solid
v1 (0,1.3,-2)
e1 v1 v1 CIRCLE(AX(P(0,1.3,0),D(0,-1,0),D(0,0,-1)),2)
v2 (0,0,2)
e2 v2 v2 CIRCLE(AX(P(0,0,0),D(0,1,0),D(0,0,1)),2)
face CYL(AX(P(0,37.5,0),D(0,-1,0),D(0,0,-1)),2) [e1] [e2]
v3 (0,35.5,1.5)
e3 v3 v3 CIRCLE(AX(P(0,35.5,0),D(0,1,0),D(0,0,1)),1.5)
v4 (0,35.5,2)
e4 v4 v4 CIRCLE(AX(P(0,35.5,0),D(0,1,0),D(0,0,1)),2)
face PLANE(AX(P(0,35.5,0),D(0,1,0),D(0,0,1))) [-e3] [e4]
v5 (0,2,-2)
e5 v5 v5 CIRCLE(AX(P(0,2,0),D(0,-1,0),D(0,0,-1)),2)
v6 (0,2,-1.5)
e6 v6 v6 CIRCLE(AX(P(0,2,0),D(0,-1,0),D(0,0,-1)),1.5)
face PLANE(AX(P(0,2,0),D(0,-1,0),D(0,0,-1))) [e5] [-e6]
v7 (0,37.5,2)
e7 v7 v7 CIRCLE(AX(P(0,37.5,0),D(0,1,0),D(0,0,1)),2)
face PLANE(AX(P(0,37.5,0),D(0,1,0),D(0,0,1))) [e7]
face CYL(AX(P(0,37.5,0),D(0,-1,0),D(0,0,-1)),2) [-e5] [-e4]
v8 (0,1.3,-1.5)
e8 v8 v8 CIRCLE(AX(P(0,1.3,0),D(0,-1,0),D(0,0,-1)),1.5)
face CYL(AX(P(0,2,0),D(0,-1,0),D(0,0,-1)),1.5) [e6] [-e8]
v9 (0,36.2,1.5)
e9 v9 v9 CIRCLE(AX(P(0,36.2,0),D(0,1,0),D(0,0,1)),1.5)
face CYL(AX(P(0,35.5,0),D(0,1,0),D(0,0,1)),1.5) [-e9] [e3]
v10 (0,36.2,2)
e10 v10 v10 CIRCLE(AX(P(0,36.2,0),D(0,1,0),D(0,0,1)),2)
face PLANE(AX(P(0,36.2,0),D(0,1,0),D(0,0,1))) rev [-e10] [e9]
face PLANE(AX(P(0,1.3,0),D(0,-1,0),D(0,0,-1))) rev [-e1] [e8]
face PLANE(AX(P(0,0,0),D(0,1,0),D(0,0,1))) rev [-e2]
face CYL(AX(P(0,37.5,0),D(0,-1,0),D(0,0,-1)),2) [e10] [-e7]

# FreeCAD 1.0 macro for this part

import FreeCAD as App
import Part
import Sketcher
Q = App.Units.Quantity

doc = App.newDocument("Part")
body = doc.addObject("PartDesign::Body", "Body")

# Sketch on XZ plane
sketch1 = doc.addObject("Sketcher::SketchObject", "Sketch")
body.addObject(sketch1)
sketch1.AttachmentSupport = (doc.XZ_Plane, [""])
sketch1.MapMode = "FlatFace"
sketch1.addGeometry(Part.Circle(App.Vector(0, 0, 0), App.Vector(0, 0, 1), 2), False)
sketch1.addConstraint([
    Sketcher.Constraint("Coincident", 0, 3, -1, 1),
    Sketcher.Constraint("Diameter", 0, Q("4 mm")),
])
pad1 = doc.addObject("PartDesign::Pad", "Pad")
body.addObject(pad1)
pad1.Profile = sketch1
pad1.Length = 37.5
pad1.Reversed = True

# Sketch on XZ plane
sketch2 = doc.addObject("Sketcher::SketchObject", "Sketch001")
body.addObject(sketch2)
sketch2.AttachmentSupport = (doc.XZ_Plane, [""])
sketch2.MapMode = "FlatFace"
sketch2.AttachmentOffset = App.Placement(App.Vector(0, 0, -35.5), App.Rotation())
sketch2.addGeometry([
    Part.Circle(App.Vector(0, 0, 0), App.Vector(0, 0, 1), 2),
    Part.Circle(App.Vector(0, 0, 0), App.Vector(0, 0, 1), 1.5),
], False)
sketch2.addConstraint([
    Sketcher.Constraint("Coincident", 0, 3, -1, 1),
    Sketcher.Constraint("Coincident", 1, 3, -1, 1),
    Sketcher.Constraint("Diameter", 0, Q("4 mm")),
    Sketcher.Constraint("Diameter", 1, Q("3 mm")),
])
pocket1 = doc.addObject("PartDesign::Pocket", "Pocket")
body.addObject(pocket1)
pocket1.Profile = sketch2
pocket1.Length = 0.7

# Sketch on XZ plane
sketch3 = doc.addObject("Sketcher::SketchObject", "Sketch002")
body.addObject(sketch3)
sketch3.AttachmentSupport = (doc.XZ_Plane, [""])
sketch3.MapMode = "FlatFace"
sketch3.AttachmentOffset = App.Placement(App.Vector(0, 0, -1.3), App.Rotation())
sketch3.addGeometry([
    Part.Circle(App.Vector(0, 0, 0), App.Vector(0, 0, 1), 2),
    Part.Circle(App.Vector(0, 0, 0), App.Vector(0, 0, 1), 1.5),
], False)
sketch3.addConstraint([
    Sketcher.Constraint("Coincident", 0, 3, -1, 1),
    Sketcher.Constraint("Coincident", 1, 3, -1, 1),
    Sketcher.Constraint("Diameter", 0, Q("4 mm")),
    Sketcher.Constraint("Diameter", 1, Q("3 mm")),
])
pocket2 = doc.addObject("PartDesign::Pocket", "Pocket001")
body.addObject(pocket2)
pocket2.Profile = sketch3
pocket2.Length = 0.7

doc.recompute()
